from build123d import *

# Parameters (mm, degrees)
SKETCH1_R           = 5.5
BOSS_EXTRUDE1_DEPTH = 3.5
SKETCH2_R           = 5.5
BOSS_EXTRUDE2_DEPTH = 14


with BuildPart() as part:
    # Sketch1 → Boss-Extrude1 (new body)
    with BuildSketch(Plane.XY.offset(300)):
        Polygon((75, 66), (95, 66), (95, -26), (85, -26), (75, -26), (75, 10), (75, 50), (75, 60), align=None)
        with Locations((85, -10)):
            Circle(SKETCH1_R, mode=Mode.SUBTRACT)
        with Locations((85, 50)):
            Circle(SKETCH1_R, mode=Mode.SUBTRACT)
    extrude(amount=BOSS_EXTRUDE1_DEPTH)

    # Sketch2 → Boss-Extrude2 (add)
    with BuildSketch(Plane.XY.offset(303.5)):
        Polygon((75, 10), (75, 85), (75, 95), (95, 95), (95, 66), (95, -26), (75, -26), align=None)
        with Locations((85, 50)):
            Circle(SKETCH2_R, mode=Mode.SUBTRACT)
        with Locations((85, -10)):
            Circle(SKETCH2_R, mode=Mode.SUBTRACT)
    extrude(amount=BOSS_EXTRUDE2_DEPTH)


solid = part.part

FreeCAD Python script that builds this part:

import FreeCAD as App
import Part
import Sketcher
from FreeCAD import Vector


def add_polygon(sketch, points):
    """Adds a closed chain of lines whose ends are joined by coincident constraints."""
    first, n = sketch.GeometryCount, len(points)
    for a, b in zip(points, points[1:] + points[:1]):
        sketch.addGeometry(Part.LineSegment(App.Vector(*a, 0), App.Vector(*b, 0)), False)
    for i in range(n):
        sketch.addConstraint(Sketcher.Constraint("Coincident", first + i, 2, first + (i + 1) % n, 1))

doc = App.newDocument("Part")
params = doc.addObject("Spreadsheet::Sheet", "Params")
for row, (alias, value) in enumerate([
    ("sketch1_diameter", "11 mm"),
    ("sketch1_width", "20 mm"),
    ("sketch1_height", "92 mm"),
    ("pad1_length", "3.5 mm"),
    ("sketch2_diameter", "11 mm"),
    ("sketch2_width", "20 mm"),
    ("sketch2_height", "121 mm"),
    ("pad2_length", "14 mm"),
], start=1):
    params.set(f"A{row}", alias)
    params.set(f"B{row}", "=" + value)
    params.setAlias(f"B{row}", alias)

body = doc.addObject("PartDesign::Body", "Body")

sketch1 = body.newObject("Sketcher::SketchObject", "Sketch")
sketch1.AttachmentSupport = (doc.getObject("XY_Plane"), [""])
sketch1.MapMode = "FlatFace"
sketch1.AttachmentOffset = App.Placement(Vector(0, 0, 300), App.Rotation())
add_polygon(sketch1, [(95, 66), (75, 66), (75, -26), (95, -26)])
sketch1.addGeometry(Part.Circle(Vector(85, -10, 0), Vector(0, 0, 1), 5.5), False)
sketch1.addGeometry(Part.Circle(Vector(85, 50, 0), Vector(0, 0, 1), 5.5), False)
sketch1.addConstraint(Sketcher.Constraint("Horizontal", 0))
sketch1.addConstraint(Sketcher.Constraint("Vertical", 1))
sketch1.addConstraint(Sketcher.Constraint("Horizontal", 2))
sketch1.addConstraint(Sketcher.Constraint("Vertical", 3))
sketch1.addConstraint(Sketcher.Constraint("Equal", 4, 5))
sketch1.addConstraint(Sketcher.Constraint("Vertical", 4, 3, 5, 3))
sketch1.addConstraint(Sketcher.Constraint("Diameter", 4, 11.0))
sketch1.addConstraint(Sketcher.Constraint("DistanceX", 0, 2, 0, 1, 20.0))
sketch1.addConstraint(Sketcher.Constraint("DistanceY", 1, 2, 1, 1, 92.0))
sketch1.addConstraint(Sketcher.Constraint("DistanceX", -1, 1, 4, 3, 85.0))
sketch1.addConstraint(Sketcher.Constraint("DistanceY", 4, 3, -1, 1, 10.0))
sketch1.addConstraint(Sketcher.Constraint("DistanceY", -1, 1, 5, 3, 50.0))
sketch1.addConstraint(Sketcher.Constraint("DistanceX", -1, 1, 0, 2, 75.0))
sketch1.addConstraint(Sketcher.Constraint("DistanceY", -1, 1, 0, 2, 66.0))
sketch1.setExpression("Constraints[10]", "Params.sketch1_diameter")
sketch1.setExpression("Constraints[11]", "Params.sketch1_width")
sketch1.setExpression("Constraints[12]", "Params.sketch1_height")
pad1 = body.newObject("PartDesign::Pad", "Pad")
pad1.Profile = sketch1
pad1.setExpression("Length", "Params.pad1_length")

sketch2 = body.newObject("Sketcher::SketchObject", "Sketch001")
sketch2.AttachmentSupport = (doc.getObject("XY_Plane"), [""])
sketch2.MapMode = "FlatFace"
sketch2.AttachmentOffset = App.Placement(Vector(0, 0, 303.5), App.Rotation())
add_polygon(sketch2, [(75, 95), (75, -26), (95, -26), (95, 95)])
sketch2.addGeometry(Part.Circle(Vector(85, -10, 0), Vector(0, 0, 1), 5.5), False)
sketch2.addGeometry(Part.Circle(Vector(85, 50, 0), Vector(0, 0, 1), 5.5), False)
sketch2.addConstraint(Sketcher.Constraint("Vertical", 0))
sketch2.addConstraint(Sketcher.Constraint("Horizontal", 1))
sketch2.addConstraint(Sketcher.Constraint("Vertical", 2))
sketch2.addConstraint(Sketcher.Constraint("Horizontal", 3))
sketch2.addConstraint(Sketcher.Constraint("Equal", 4, 5))
sketch2.addConstraint(Sketcher.Constraint("Vertical", 4, 3, 5, 3))
sketch2.addConstraint(Sketcher.Constraint("Diameter", 4, 11.0))
sketch2.addConstraint(Sketcher.Constraint("DistanceX", 1, 1, 1, 2, 20.0))
sketch2.addConstraint(Sketcher.Constraint("DistanceY", 0, 2, 0, 1, 121.0))
sketch2.addConstraint(Sketcher.Constraint("DistanceX", -1, 1, 4, 3, 85.0))
sketch2.addConstraint(Sketcher.Constraint("DistanceY", 4, 3, -1, 1, 10.0))
sketch2.addConstraint(Sketcher.Constraint("DistanceY", -1, 1, 5, 3, 50.0))
sketch2.addConstraint(Sketcher.Constraint("DistanceX", -1, 1, 0, 2, 75.0))
sketch2.addConstraint(Sketcher.Constraint("DistanceY", 0, 2, -1, 1, 26.0))
sketch2.setExpression("Constraints[10]", "Params.sketch2_diameter")
sketch2.setExpression("Constraints[11]", "Params.sketch2_width")
sketch2.setExpression("Constraints[12]", "Params.sketch2_height")
pad2 = body.newObject("PartDesign::Pad", "Pad001")
pad2.Profile = sketch2
pad2.setExpression("Length", "Params.pad2_length")

doc.recompute()
